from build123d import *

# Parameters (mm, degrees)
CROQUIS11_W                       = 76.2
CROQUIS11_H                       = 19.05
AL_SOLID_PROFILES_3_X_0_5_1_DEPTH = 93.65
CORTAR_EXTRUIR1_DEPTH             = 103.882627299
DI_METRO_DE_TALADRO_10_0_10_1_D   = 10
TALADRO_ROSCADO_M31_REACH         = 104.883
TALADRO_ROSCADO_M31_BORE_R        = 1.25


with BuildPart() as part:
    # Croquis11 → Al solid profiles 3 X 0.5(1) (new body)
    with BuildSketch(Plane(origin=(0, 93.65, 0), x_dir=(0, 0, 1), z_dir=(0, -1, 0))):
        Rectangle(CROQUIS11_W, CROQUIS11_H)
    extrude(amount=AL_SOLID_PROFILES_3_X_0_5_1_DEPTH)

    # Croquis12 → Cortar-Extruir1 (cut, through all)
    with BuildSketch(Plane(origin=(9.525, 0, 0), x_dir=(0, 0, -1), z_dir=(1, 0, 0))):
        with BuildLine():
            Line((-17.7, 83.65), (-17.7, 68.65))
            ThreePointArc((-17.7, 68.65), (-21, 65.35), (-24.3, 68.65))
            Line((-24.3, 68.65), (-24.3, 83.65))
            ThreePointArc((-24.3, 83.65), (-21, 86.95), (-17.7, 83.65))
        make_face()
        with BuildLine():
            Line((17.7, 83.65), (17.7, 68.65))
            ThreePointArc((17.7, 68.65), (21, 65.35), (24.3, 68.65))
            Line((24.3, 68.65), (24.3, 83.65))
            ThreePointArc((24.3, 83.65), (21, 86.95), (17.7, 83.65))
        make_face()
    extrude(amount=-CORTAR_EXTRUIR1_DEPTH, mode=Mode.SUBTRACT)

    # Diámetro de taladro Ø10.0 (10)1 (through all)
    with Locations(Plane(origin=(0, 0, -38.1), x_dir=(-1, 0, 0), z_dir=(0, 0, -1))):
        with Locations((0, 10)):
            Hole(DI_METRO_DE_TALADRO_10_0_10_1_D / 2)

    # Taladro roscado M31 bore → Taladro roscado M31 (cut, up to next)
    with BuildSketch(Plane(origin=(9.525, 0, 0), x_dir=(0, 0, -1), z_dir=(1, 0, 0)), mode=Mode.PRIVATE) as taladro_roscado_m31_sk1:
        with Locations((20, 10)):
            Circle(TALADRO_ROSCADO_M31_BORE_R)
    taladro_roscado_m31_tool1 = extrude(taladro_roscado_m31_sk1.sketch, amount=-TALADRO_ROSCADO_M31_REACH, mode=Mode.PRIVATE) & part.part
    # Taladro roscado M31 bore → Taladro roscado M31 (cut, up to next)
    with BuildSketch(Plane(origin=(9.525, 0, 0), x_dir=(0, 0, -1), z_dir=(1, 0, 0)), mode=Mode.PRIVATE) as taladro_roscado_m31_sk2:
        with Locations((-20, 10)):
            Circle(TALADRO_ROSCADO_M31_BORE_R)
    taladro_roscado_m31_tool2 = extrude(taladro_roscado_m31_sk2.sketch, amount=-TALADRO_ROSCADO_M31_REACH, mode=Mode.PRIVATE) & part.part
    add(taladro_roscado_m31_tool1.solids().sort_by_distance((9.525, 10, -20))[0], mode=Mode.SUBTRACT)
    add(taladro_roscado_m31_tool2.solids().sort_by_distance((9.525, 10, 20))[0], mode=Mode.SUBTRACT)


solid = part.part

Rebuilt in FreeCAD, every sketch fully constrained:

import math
import FreeCAD as App
import Part
import Sketcher
Q = App.Units.Quantity


def add_polygon(sketch, points):
    """Adds a closed chain of lines whose ends are joined by coincident constraints."""
    first, n = sketch.GeometryCount, len(points)
    for a, b in zip(points, points[1:] + points[:1]):
        sketch.addGeometry(Part.LineSegment(App.Vector(*a, 0), App.Vector(*b, 0)), False)
    for i in range(n):
        sketch.addConstraint(Sketcher.Constraint("Coincident", first + i, 2, first + (i + 1) % n, 1))

doc = App.newDocument("Part")
params = doc.addObject("Spreadsheet::Sheet", "Params")
for row, (alias, value) in enumerate([
    ("sketch1_height", "76.2 mm"),
    ("sketch1_width", "19.05 mm"),
    ("pad1_length", "93.65 mm"),
    ("sketch2_radius", "3.3 mm"),
    ("sketch2_width", "15 mm"),
    ("sketch3_diameter", "10 mm"),
    ("hole_diameter", "10 mm"),
    ("sketch4_diameter", "2.5 mm"),
    ("sketch5_diameter", "2.5 mm"),
], start=1):
    params.set(f"A{row}", alias)
    params.set(f"B{row}", "=" + value)
    params.setAlias(f"B{row}", alias)

body = doc.addObject("PartDesign::Body", "Body")

# Sketch on XZ plane
sketch1 = body.newObject("Sketcher::SketchObject", "Sketch")
sketch1.AttachmentSupport = (doc.getObject("XZ_Plane"), [""])
sketch1.MapMode = "FlatFace"
sketch1.AttachmentOffset = App.Placement(App.Vector(0, 0, -93.65), App.Rotation())
add_polygon(sketch1, [(-10, -38), (10, -38), (10, 38), (-10, 38)])  # lines 0-3
sketch1.addConstraint(Sketcher.Constraint("Horizontal", 0))
sketch1.addConstraint(Sketcher.Constraint("Vertical", 1))
sketch1.addConstraint(Sketcher.Constraint("Horizontal", 2))
sketch1.addConstraint(Sketcher.Constraint("Vertical", 3))
sketch1.addConstraint(Sketcher.Constraint("Symmetric", 0, 2, 2, 2, -1, 1))
sketch1.addConstraint(Sketcher.Constraint("DistanceY", 1, 1, 1, 2, Q("76.2 mm")))
sketch1.addConstraint(Sketcher.Constraint("DistanceX", 0, 1, 0, 2, Q("19.05 mm")))
sketch1.setExpression("Constraints[9]", "Params.sketch1_height")
sketch1.setExpression("Constraints[10]", "Params.sketch1_width")
pad1 = body.newObject("PartDesign::Pad", "Pad")
pad1.Profile = sketch1
pad1.setExpression("Length", "Params.pad1_length")

# Sketch on YZ plane
sketch2 = body.newObject("Sketcher::SketchObject", "Sketch001")
sketch2.AttachmentSupport = (doc.getObject("YZ_Plane"), [""])
sketch2.MapMode = "FlatFace"
sketch2.AttachmentOffset = App.Placement(App.Vector(0, 0, 9.525), App.Rotation())
sketch2.addGeometry(Part.LineSegment(App.Vector(68.7, 17.7, 0), App.Vector(83.7, 17.7, 0)), False)
sketch2.addGeometry(Part.ArcOfCircle(Part.Circle(App.Vector(83.7, 21, 0), App.Vector(0, 0, 1), 3.3), math.radians(-90), math.radians(90)), False)
sketch2.addGeometry(Part.LineSegment(App.Vector(83.7, 24.3, 0), App.Vector(68.7, 24.3, 0)), False)
sketch2.addGeometry(Part.ArcOfCircle(Part.Circle(App.Vector(68.7, 21, 0), App.Vector(0, 0, 1), 3.3), math.radians(90), math.radians(270)), False)
sketch2.addGeometry(Part.LineSegment(App.Vector(83.7, -17.7, 0), App.Vector(68.7, -17.7, 0)), False)
sketch2.addGeometry(Part.ArcOfCircle(Part.Circle(App.Vector(68.7, -21, 0), App.Vector(0, 0, 1), 3.3), math.radians(90), math.radians(270)), False)
sketch2.addGeometry(Part.LineSegment(App.Vector(68.7, -24.3, 0), App.Vector(83.7, -24.3, 0)), False)
sketch2.addGeometry(Part.ArcOfCircle(Part.Circle(App.Vector(83.7, -21, 0), App.Vector(0, 0, 1), 3.3), math.radians(-90), math.radians(90)), False)
sketch2.addConstraint(Sketcher.Constraint("Tangent", 0, 2, 1, 1))
sketch2.addConstraint(Sketcher.Constraint("Tangent", 1, 2, 2, 1))
sketch2.addConstraint(Sketcher.Constraint("Tangent", 2, 2, 3, 1))
sketch2.addConstraint(Sketcher.Constraint("Tangent", 3, 2, 0, 1))
sketch2.addConstraint(Sketcher.Constraint("Tangent", 4, 2, 5, 1))
sketch2.addConstraint(Sketcher.Constraint("Tangent", 5, 2, 6, 1))
sketch2.addConstraint(Sketcher.Constraint("Tangent", 6, 2, 7, 1))
sketch2.addConstraint(Sketcher.Constraint("Tangent", 7, 2, 4, 1))
sketch2.addConstraint(Sketcher.Constraint("Horizontal", 0))
sketch2.addConstraint(Sketcher.Constraint("Horizontal", 2))
sketch2.addConstraint(Sketcher.Constraint("Horizontal", 4))
sketch2.addConstraint(Sketcher.Constraint("Horizontal", 6))
sketch2.addConstraint(Sketcher.Constraint("Equal", 3, 5))
sketch2.addConstraint(Sketcher.Constraint("Symmetric", 3, 3, 5, 3, -1))
sketch2.addConstraint(Sketcher.Constraint("Vertical", 1, 3, 7, 3))
sketch2.addConstraint(Sketcher.Constraint("Radius", 1, Q("3.3 mm")))
sketch2.addConstraint(Sketcher.Constraint("DistanceX", 0, 1, 0, 2, Q("15 mm")))
sketch2.addConstraint(Sketcher.Constraint("DistanceY", -1, 1, 1, 3, Q("21 mm")))
sketch2.addConstraint(Sketcher.Constraint("DistanceX", -1, 1, 1, 3, Q("83.65 mm")))
sketch2.setExpression("Constraints[15]", "Params.sketch2_radius")
sketch2.setExpression("Constraints[16]", "Params.sketch2_width")
pocket1 = body.newObject("PartDesign::Pocket", "Pocket")
pocket1.Profile = sketch2
pocket1.Type = "ThroughAll"

# Sketch on XY plane
sketch3 = body.newObject("Sketcher::SketchObject", "Sketch002")
sketch3.AttachmentSupport = (doc.getObject("XY_Plane"), [""])
sketch3.MapMode = "FlatFace"
sketch3.AttachmentOffset = App.Placement(App.Vector(0, 0, -38.1), App.Rotation())
sketch3.addGeometry(Part.Circle(App.Vector(0, 10, 0), App.Vector(0, 0, 1), 5), False)
sketch3.addConstraint(Sketcher.Constraint("PointOnObject", 0, 3, -2))
sketch3.addConstraint(Sketcher.Constraint("Diameter", 0, Q("10 mm")))
sketch3.addConstraint(Sketcher.Constraint("DistanceY", -1, 1, 0, 3, Q("10 mm")))
sketch3.setExpression("Constraints[1]", "Params.sketch3_diameter")
doc.recompute()
hole = body.newObject("PartDesign::Hole", "Hole")
hole.Profile = sketch3
hole.ThreadType = "None"
hole.setExpression("Diameter", "Params.hole_diameter")
hole.DepthType = "ThroughAll"
hole.Reversed = True

# Sketch on YZ plane
sketch4 = body.newObject("Sketcher::SketchObject", "Sketch003")
sketch4.AttachmentSupport = (doc.getObject("YZ_Plane"), [""])
sketch4.MapMode = "FlatFace"
sketch4.AttachmentOffset = App.Placement(App.Vector(0, 0, 9.525), App.Rotation())
sketch4.addGeometry(Part.Circle(App.Vector(10, -20, 0), App.Vector(0, 0, 1), 1.2), False)
sketch4.addConstraint(Sketcher.Constraint("Diameter", 0, Q("2.5 mm")))
sketch4.addConstraint(Sketcher.Constraint("DistanceX", -1, 1, 0, 3, Q("10 mm")))
sketch4.addConstraint(Sketcher.Constraint("DistanceY", 0, 3, -1, 1, Q("20 mm")))
sketch4.setExpression("Constraints[0]", "Params.sketch4_diameter")
pocket2 = body.newObject("PartDesign::Pocket", "Pocket001")
pocket2.Profile = sketch4
pocket2.Type = "UpToFirst"

# Sketch on YZ plane
sketch5 = body.newObject("Sketcher::SketchObject", "Sketch004")
sketch5.AttachmentSupport = (doc.getObject("YZ_Plane"), [""])
sketch5.MapMode = "FlatFace"
sketch5.AttachmentOffset = App.Placement(App.Vector(0, 0, 9.525), App.Rotation())
sketch5.addGeometry(Part.Circle(App.Vector(10, 20, 0), App.Vector(0, 0, 1), 1.2), False)
sketch5.addConstraint(Sketcher.Constraint("Diameter", 0, Q("2.5 mm")))
sketch5.addConstraint(Sketcher.Constraint("DistanceX", -1, 1, 0, 3, Q("10 mm")))
sketch5.addConstraint(Sketcher.Constraint("DistanceY", -1, 1, 0, 3, Q("20 mm")))
sketch5.setExpression("Constraints[0]", "Params.sketch5_diameter")
pocket3 = body.newObject("PartDesign::Pocket", "Pocket002")
pocket3.Profile = sketch5
pocket3.Type = "UpToFirst"

doc.recompute()
